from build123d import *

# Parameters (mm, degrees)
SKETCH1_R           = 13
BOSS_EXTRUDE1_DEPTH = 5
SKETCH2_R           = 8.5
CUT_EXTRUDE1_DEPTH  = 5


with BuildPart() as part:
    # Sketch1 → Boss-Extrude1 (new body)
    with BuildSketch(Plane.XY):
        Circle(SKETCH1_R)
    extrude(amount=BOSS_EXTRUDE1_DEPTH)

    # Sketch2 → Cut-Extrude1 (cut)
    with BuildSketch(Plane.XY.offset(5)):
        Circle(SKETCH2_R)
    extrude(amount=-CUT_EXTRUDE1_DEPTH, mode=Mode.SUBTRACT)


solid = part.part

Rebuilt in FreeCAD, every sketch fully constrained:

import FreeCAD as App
import Part
import Sketcher
Q = App.Units.Quantity

doc = App.newDocument("Part")
body = doc.addObject("PartDesign::Body", "Body")

sketch1 = body.newObject("Sketcher::SketchObject", "Sketch")
sketch1.AttachmentSupport = (doc.getObject("XY_Plane"), [""])
sketch1.MapMode = "FlatFace"
sketch1.addGeometry(Part.Circle(App.Vector(0, 0, 0), App.Vector(0, 0, 1), 13), False)
sketch1.addConstraint([
    Sketcher.Constraint("Coincident", 0, 3, -1, 1),
    Sketcher.Constraint("Diameter", 0, Q("26 mm")),
])
pad1 = body.newObject("PartDesign::Pad", "Pad")
pad1.Profile = sketch1
pad1.Length = 5

sketch2 = body.newObject("Sketcher::SketchObject", "Sketch001")
sketch2.AttachmentSupport = (doc.getObject("XY_Plane"), [""])
sketch2.MapMode = "FlatFace"
sketch2.AttachmentOffset = App.Placement(App.Vector(0, 0, 5), App.Rotation())
sketch2.addGeometry(Part.Circle(App.Vector(0, 0, 0), App.Vector(0, 0, 1), 8), False)
sketch2.addConstraint([
    Sketcher.Constraint("Coincident", 0, 3, -1, 1),
    Sketcher.Constraint("Diameter", 0, Q("17 mm")),
])
pocket1 = body.newObject("PartDesign::Pocket", "Pocket")
pocket1.Profile = sketch2
pocket1.Length = 5

doc.recompute()
